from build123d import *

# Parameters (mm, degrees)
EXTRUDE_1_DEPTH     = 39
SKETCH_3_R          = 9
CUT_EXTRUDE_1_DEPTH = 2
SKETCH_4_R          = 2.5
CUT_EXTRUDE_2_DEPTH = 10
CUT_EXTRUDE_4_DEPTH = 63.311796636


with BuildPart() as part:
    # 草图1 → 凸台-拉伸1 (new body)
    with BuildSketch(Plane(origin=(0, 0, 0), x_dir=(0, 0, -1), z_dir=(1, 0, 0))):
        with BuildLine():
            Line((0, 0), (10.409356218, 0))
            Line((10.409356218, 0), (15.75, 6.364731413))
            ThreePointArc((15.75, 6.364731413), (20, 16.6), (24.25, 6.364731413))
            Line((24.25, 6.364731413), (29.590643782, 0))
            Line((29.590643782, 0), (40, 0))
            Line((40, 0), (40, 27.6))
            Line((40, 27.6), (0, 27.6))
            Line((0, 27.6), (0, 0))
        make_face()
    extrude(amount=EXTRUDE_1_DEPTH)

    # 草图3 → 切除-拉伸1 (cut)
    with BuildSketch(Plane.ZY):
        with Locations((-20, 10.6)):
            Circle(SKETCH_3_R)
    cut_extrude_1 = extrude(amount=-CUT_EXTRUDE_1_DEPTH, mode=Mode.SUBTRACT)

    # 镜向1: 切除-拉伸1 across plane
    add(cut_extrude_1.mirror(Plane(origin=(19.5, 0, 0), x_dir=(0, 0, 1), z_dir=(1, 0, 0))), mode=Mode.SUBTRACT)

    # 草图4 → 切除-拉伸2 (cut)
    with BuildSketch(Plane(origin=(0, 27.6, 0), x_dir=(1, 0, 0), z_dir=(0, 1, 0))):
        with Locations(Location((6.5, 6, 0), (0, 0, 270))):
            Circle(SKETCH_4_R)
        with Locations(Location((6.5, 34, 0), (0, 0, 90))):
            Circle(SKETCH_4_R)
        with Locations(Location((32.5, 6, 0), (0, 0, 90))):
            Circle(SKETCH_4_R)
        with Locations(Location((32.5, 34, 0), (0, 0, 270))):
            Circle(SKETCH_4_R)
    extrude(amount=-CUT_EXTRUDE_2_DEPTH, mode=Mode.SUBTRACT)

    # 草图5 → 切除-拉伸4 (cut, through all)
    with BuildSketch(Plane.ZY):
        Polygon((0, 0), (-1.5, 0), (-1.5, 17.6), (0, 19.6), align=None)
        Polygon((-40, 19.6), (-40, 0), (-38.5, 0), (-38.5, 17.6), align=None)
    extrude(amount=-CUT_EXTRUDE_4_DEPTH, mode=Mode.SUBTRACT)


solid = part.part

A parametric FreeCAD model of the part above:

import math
import FreeCAD as App
import Part
import Sketcher
from FreeCAD import Vector
Q = App.Units.Quantity

doc = App.newDocument("Part")
body = doc.addObject("PartDesign::Body", "Body")

sketch1 = body.newObject("Sketcher::SketchObject", "Sketch")
sketch1.AttachmentSupport = (doc.getObject("YZ_Plane"), [""])
sketch1.MapMode = "FlatFace"
sketch1.addGeometry(Part.LineSegment(Vector(0, 0, 0), Vector(0, -10, 0)), False)
sketch1.addGeometry(Part.LineSegment(Vector(0, -10, 0), Vector(6, -16, 0)), False)
sketch1.addGeometry(Part.ArcOfCircle(Part.Circle(Vector(11, -20, 0), Vector(0, 0, 1), 6), math.radians(-135), math.radians(135)), False)
sketch1.addGeometry(Part.LineSegment(Vector(6, -24, 0), Vector(0, -30, 0)), False)
sketch1.addGeometry(Part.LineSegment(Vector(0, -30, 0), Vector(0, -40, 0)), False)
sketch1.addGeometry(Part.LineSegment(Vector(0, -40, 0), Vector(28, -40, 0)), False)
sketch1.addGeometry(Part.LineSegment(Vector(28, -40, 0), Vector(28, 0, 0)), False)
sketch1.addGeometry(Part.LineSegment(Vector(28, 0, 0), Vector(0, 0, 0)), False)
sketch1.addConstraint(Sketcher.Constraint("Coincident", 0, 2, 1, 1))
sketch1.addConstraint(Sketcher.Constraint("Coincident", 1, 2, 2, 2))
sketch1.addConstraint(Sketcher.Constraint("Coincident", 2, 1, 3, 1))
sketch1.addConstraint(Sketcher.Constraint("Coincident", 3, 2, 4, 1))
sketch1.addConstraint(Sketcher.Constraint("Coincident", 4, 2, 5, 1))
sketch1.addConstraint(Sketcher.Constraint("Coincident", 5, 2, 6, 1))
sketch1.addConstraint(Sketcher.Constraint("Coincident", 6, 2, 7, 1))
sketch1.addConstraint(Sketcher.Constraint("Coincident", 7, 2, 0, 1))
sketch1.addConstraint(Sketcher.Constraint("Vertical", 0))
sketch1.addConstraint(Sketcher.Constraint("Vertical", 4))
sketch1.addConstraint(Sketcher.Constraint("Horizontal", 5))
sketch1.addConstraint(Sketcher.Constraint("Vertical", 6))
sketch1.addConstraint(Sketcher.Constraint("Horizontal", 7))
sketch1.addConstraint(Sketcher.Constraint("Coincident", 7, 2, -1, 1))
sketch1.addConstraint(Sketcher.Constraint("PointOnObject", 3, 2, -2))
sketch1.addConstraint(Sketcher.Constraint("Vertical", 1, 2, 2, 1))
sketch1.addConstraint(Sketcher.Constraint("Equal", 0, 4))
sketch1.addConstraint(Sketcher.Constraint("Equal", 1, 3))
sketch1.addConstraint(Sketcher.Constraint("Radius", 2, 6.0))
sketch1.addConstraint(Sketcher.Constraint("DistanceY", 6, 1, 6, 2, 40.0))
sketch1.addConstraint(Sketcher.Constraint("Angle", 1, Q("-40 deg")))
sketch1.addConstraint(Sketcher.Constraint("DistanceX", 5, 1, 5, 2, 27.6))
sketch1.addConstraint(Sketcher.Constraint("DistanceX", 2, 3, 5, 2, 17.0))
sketch1.addConstraint(Sketcher.Constraint("DistanceY", 2, 1, 1, 2, 8.5))
pad1 = body.newObject("PartDesign::Pad", "Pad")
pad1.Profile = sketch1
pad1.Length = 39

sketch2 = body.newObject("Sketcher::SketchObject", "Sketch001")
sketch2.AttachmentSupport = (doc.getObject("YZ_Plane"), [""])
sketch2.MapMode = "FlatFace"
sketch2.addGeometry(Part.Circle(Vector(11, -20, 0), Vector(0, 0, 1), 9), False)
sketch2.addConstraint(Sketcher.Constraint("Diameter", 0, 18.0))
sketch2.addConstraint(Sketcher.Constraint("DistanceY", 0, 3, -1, 1, 20.0))
sketch2.addConstraint(Sketcher.Constraint("DistanceX", -1, 1, 0, 3, 10.6))
pocket1 = body.newObject("PartDesign::Pocket", "Pocket")
pocket1.Profile = sketch2
pocket1.Length = 2
pocket1.Reversed = True
doc.recompute()

datumplane = body.newObject("PartDesign::Plane", "DatumPlane")
datumplane.AttachmentSupport = (doc.getObject("YZ_Plane"), [""])
datumplane.MapMode = "FlatFace"
datumplane.AttachmentOffset = App.Placement(Vector(0, 0, 19.5), App.Rotation())
mirrored = body.newObject("PartDesign::Mirrored", "Mirrored")
mirrored.Originals = [pocket1]
mirrored.MirrorPlane = (datumplane, [""])
body.Tip = mirrored

sketch3 = body.newObject("Sketcher::SketchObject", "Sketch002")
sketch3.AttachmentSupport = (doc.getObject("XZ_Plane"), [""])
sketch3.MapMode = "FlatFace"
sketch3.AttachmentOffset = App.Placement(Vector(0, 0, -27.6), App.Rotation())
sketch3.addGeometry(Part.Circle(Vector(6.5, -6, 0), Vector(0, 0, 1), 2.5), False)
sketch3.addGeometry(Part.Circle(Vector(6.5, -34, 0), Vector(0, 0, 1), 2.5), False)
sketch3.addGeometry(Part.Circle(Vector(32.5, -6, 0), Vector(0, 0, 1), 2.5), False)
sketch3.addGeometry(Part.Circle(Vector(32.5, -34, 0), Vector(0, 0, 1), 2.5), False)
sketch3.addConstraint(Sketcher.Constraint("Equal", 0, 1))
sketch3.addConstraint(Sketcher.Constraint("Equal", 1, 2))
sketch3.addConstraint(Sketcher.Constraint("Equal", 2, 3))
sketch3.addConstraint(Sketcher.Constraint("Horizontal", 0, 3, 2, 3))
sketch3.addConstraint(Sketcher.Constraint("Horizontal", 1, 3, 3, 3))
sketch3.addConstraint(Sketcher.Constraint("Vertical", 0, 3, 1, 3))
sketch3.addConstraint(Sketcher.Constraint("Vertical", 2, 3, 3, 3))
sketch3.addConstraint(Sketcher.Constraint("Diameter", 0, 5.0))
sketch3.addConstraint(Sketcher.Constraint("DistanceY", 0, 3, -1, 1, 6.0))
sketch3.addConstraint(Sketcher.Constraint("DistanceY", 1, 3, -1, 1, 34.0))
sketch3.addConstraint(Sketcher.Constraint("DistanceX", 0, 3, 2, 3, 26.0))
sketch3.addConstraint(Sketcher.Constraint("DistanceX", -1, 1, 0, 3, 6.5))
pocket2 = body.newObject("PartDesign::Pocket", "Pocket001")
pocket2.Profile = sketch3
pocket2.Length = 10
pocket2.Reversed = True

sketch4 = body.newObject("Sketcher::SketchObject", "Sketch003")
sketch4.AttachmentSupport = (doc.getObject("YZ_Plane"), [""])
sketch4.MapMode = "FlatFace"
sketch4.addGeometry(Part.LineSegment(Vector(0, -1.5, 0), Vector(0, 0, 0)), False)
sketch4.addGeometry(Part.LineSegment(Vector(0, 0, 0), Vector(19.6, 0, 0)), False)
sketch4.addGeometry(Part.LineSegment(Vector(19.6, 0, 0), Vector(17.6, -1.5, 0)), False)
sketch4.addGeometry(Part.LineSegment(Vector(17.6, -1.5, 0), Vector(0, -1.5, 0)), False)
sketch4.addGeometry(Part.LineSegment(Vector(19.6, -40, 0), Vector(0, -40, 0)), False)
sketch4.addGeometry(Part.LineSegment(Vector(0, -40, 0), Vector(0, -38.5, 0)), False)
sketch4.addGeometry(Part.LineSegment(Vector(0, -38.5, 0), Vector(17.6, -38.5, 0)), False)
sketch4.addGeometry(Part.LineSegment(Vector(17.6, -38.5, 0), Vector(19.6, -40, 0)), False)
sketch4.addConstraint(Sketcher.Constraint("Coincident", 0, 2, 1, 1))
sketch4.addConstraint(Sketcher.Constraint("Coincident", 1, 2, 2, 1))
sketch4.addConstraint(Sketcher.Constraint("Coincident", 2, 2, 3, 1))
sketch4.addConstraint(Sketcher.Constraint("Coincident", 3, 2, 0, 1))
sketch4.addConstraint(Sketcher.Constraint("Coincident", 4, 2, 5, 1))
sketch4.addConstraint(Sketcher.Constraint("Coincident", 5, 2, 6, 1))
sketch4.addConstraint(Sketcher.Constraint("Coincident", 6, 2, 7, 1))
sketch4.addConstraint(Sketcher.Constraint("Coincident", 7, 2, 4, 1))
sketch4.addConstraint(Sketcher.Constraint("Vertical", 0))
sketch4.addConstraint(Sketcher.Constraint("Horizontal", 1))
sketch4.addConstraint(Sketcher.Constraint("Horizontal", 3))
sketch4.addConstraint(Sketcher.Constraint("Horizontal", 4))
sketch4.addConstraint(Sketcher.Constraint("Vertical", 5))
sketch4.addConstraint(Sketcher.Constraint("Horizontal", 6))
sketch4.addConstraint(Sketcher.Constraint("Coincident", 0, 2, -1, 1))
sketch4.addConstraint(Sketcher.Constraint("PointOnObject", 4, 2, -2))
sketch4.addConstraint(Sketcher.Constraint("Vertical", 2, 2, 6, 2))
sketch4.addConstraint(Sketcher.Constraint("Vertical", 1, 2, 7, 2))
sketch4.addConstraint(Sketcher.Constraint("Equal", 0, 5))
sketch4.addConstraint(Sketcher.Constraint("DistanceX", 1, 1, 1, 2, 19.6))
sketch4.addConstraint(Sketcher.Constraint("DistanceX", 3, 2, 3, 1, 17.6))
sketch4.addConstraint(Sketcher.Constraint("DistanceY", 0, 1, 0, 2, 1.5))
sketch4.addConstraint(Sketcher.Constraint("DistanceY", 4, 2, -1, 1, 40.0))
pocket3 = body.newObject("PartDesign::Pocket", "Pocket002")
pocket3.Profile = sketch4
pocket3.Type = "ThroughAll"
pocket3.Reversed = True

doc.recompute()
